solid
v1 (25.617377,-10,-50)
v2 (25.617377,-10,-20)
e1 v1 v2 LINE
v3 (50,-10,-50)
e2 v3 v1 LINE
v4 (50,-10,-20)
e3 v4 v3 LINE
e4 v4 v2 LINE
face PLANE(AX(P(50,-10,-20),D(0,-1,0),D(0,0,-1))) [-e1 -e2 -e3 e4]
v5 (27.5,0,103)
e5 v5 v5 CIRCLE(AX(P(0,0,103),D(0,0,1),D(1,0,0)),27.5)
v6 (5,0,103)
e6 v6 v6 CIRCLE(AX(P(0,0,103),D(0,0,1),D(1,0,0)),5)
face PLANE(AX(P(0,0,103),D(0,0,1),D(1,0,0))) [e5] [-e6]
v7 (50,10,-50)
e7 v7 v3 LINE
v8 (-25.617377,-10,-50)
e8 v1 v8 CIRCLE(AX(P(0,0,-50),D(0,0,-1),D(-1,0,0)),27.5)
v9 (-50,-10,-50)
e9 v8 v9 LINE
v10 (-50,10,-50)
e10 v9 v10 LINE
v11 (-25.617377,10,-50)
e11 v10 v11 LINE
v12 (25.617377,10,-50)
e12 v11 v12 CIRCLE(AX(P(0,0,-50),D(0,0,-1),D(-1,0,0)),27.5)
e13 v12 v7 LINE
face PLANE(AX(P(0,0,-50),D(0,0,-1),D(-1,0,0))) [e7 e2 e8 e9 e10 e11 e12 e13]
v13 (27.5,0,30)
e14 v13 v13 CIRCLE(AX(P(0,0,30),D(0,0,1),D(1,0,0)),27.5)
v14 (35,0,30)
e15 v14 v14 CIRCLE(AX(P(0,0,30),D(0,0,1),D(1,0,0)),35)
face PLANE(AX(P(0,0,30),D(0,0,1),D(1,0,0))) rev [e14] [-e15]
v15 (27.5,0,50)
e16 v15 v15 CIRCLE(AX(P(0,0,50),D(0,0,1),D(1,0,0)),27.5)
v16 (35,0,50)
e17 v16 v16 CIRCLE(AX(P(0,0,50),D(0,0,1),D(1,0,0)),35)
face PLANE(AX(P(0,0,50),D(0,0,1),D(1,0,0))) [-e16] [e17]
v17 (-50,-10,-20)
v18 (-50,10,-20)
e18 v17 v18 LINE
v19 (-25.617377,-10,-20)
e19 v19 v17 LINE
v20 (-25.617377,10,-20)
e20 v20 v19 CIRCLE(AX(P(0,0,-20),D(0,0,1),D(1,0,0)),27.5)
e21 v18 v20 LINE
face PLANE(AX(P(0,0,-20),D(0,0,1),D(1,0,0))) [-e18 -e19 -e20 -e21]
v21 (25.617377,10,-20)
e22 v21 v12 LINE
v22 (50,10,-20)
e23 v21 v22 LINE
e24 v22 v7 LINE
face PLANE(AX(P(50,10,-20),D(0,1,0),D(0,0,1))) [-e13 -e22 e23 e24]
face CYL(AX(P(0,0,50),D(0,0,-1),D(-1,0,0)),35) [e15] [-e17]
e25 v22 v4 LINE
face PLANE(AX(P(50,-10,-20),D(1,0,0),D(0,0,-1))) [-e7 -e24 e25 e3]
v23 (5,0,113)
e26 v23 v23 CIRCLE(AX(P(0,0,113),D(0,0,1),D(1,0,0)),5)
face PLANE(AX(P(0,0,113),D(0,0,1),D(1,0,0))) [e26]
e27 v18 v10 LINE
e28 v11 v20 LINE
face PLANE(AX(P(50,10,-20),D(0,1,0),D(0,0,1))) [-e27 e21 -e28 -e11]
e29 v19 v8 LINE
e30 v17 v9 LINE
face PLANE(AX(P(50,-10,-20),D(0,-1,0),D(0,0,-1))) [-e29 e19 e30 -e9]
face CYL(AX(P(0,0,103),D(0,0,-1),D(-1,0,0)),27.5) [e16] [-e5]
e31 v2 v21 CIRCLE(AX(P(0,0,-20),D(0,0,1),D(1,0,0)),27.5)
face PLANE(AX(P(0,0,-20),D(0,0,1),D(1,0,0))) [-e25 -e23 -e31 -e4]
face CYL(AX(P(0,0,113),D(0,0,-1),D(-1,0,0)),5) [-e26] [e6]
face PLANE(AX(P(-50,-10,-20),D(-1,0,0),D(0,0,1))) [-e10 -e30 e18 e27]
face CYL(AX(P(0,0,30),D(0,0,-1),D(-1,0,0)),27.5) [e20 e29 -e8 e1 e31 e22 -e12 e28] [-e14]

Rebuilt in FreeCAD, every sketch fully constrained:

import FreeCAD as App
import Part
import Sketcher


def add_polygon(sketch, points):
    """Adds a closed chain of lines whose ends are joined by coincident constraints."""
    first, n = sketch.GeometryCount, len(points)
    for a, b in zip(points, points[1:] + points[:1]):
        sketch.addGeometry(Part.LineSegment(App.Vector(*a, 0), App.Vector(*b, 0)), False)
    for i in range(n):
        sketch.addConstraint(Sketcher.Constraint("Coincident", first + i, 2, first + (i + 1) % n, 1))

doc = App.newDocument("Part")
body = doc.addObject("PartDesign::Body", "Body")

# Sketch on XY plane
sketch1 = body.newObject("Sketcher::SketchObject", "Sketch")
sketch1.AttachmentSupport = (doc.getObject("XY_Plane"), [""])
sketch1.MapMode = "FlatFace"
sketch1.addGeometry(Part.Circle(App.Vector(0, 0, 0), App.Vector(0, 0, 1), 28), False)
sketch1.addConstraint(Sketcher.Constraint("Coincident", 0, 3, -1, 1))
sketch1.addConstraint(Sketcher.Constraint("Diameter", 0, 55.0))
pad1 = body.newObject("PartDesign::Pad", "Pad")
pad1.Profile = sketch1
pad1.Length = 30

# Sketch on XY plane
sketch2 = body.newObject("Sketcher::SketchObject", "Sketch001")
sketch2.AttachmentSupport = (doc.getObject("XY_Plane"), [""])
sketch2.MapMode = "FlatFace"
sketch2.AttachmentOffset = App.Placement(App.Vector(0, 0, 30), App.Rotation())
sketch2.addGeometry(Part.Circle(App.Vector(0, 0, 0), App.Vector(0, 0, 1), 35), False)
sketch2.addConstraint(Sketcher.Constraint("Coincident", 0, 3, -1, 1))
sketch2.addConstraint(Sketcher.Constraint("Diameter", 0, 70.0))
pad2 = body.newObject("PartDesign::Pad", "Pad001")
pad2.Profile = sketch2
pad2.Length = 20

# Sketch on XY plane
sketch3 = body.newObject("Sketcher::SketchObject", "Sketch002")
sketch3.AttachmentSupport = (doc.getObject("XY_Plane"), [""])
sketch3.MapMode = "FlatFace"
sketch3.AttachmentOffset = App.Placement(App.Vector(0, 0, 50), App.Rotation())
sketch3.addGeometry(Part.Circle(App.Vector(0, 0, 0), App.Vector(0, 0, 1), 28), False)
sketch3.addConstraint(Sketcher.Constraint("Coincident", 0, 3, -1, 1))
sketch3.addConstraint(Sketcher.Constraint("Diameter", 0, 55.0))
pad3 = body.newObject("PartDesign::Pad", "Pad002")
pad3.Profile = sketch3
pad3.Length = 53

# Sketch on XY plane
sketch4 = body.newObject("Sketcher::SketchObject", "Sketch003")
sketch4.AttachmentSupport = (doc.getObject("XY_Plane"), [""])
sketch4.MapMode = "FlatFace"
sketch4.AttachmentOffset = App.Placement(App.Vector(0, 0, 103), App.Rotation())
sketch4.addGeometry(Part.Circle(App.Vector(0, 0, 0), App.Vector(0, 0, 1), 5), False)
sketch4.addConstraint(Sketcher.Constraint("Coincident", 0, 3, -1, 1))
sketch4.addConstraint(Sketcher.Constraint("Diameter", 0, 10.0))
pad4 = body.newObject("PartDesign::Pad", "Pad003")
pad4.Profile = sketch4
pad4.Length = 10

# Sketch on XY plane
sketch5 = body.newObject("Sketcher::SketchObject", "Sketch004")
sketch5.AttachmentSupport = (doc.getObject("XY_Plane"), [""])
sketch5.MapMode = "FlatFace"
sketch5.AttachmentOffset = App.Placement(App.Vector(0, 0, -50), App.Rotation())
sketch5.addGeometry(Part.Circle(App.Vector(0, 0, 0), App.Vector(0, 0, 1), 28), False)
sketch5.addConstraint(Sketcher.Constraint("Coincident", 0, 3, -1, 1))
sketch5.addConstraint(Sketcher.Constraint("Diameter", 0, 55.0))
pad5 = body.newObject("PartDesign::Pad", "Pad004")
pad5.Profile = sketch5
pad5.Length = 50

# Sketch on XY plane
sketch6 = body.newObject("Sketcher::SketchObject", "Sketch005")
sketch6.AttachmentSupport = (doc.getObject("XY_Plane"), [""])
sketch6.MapMode = "FlatFace"
sketch6.AttachmentOffset = App.Placement(App.Vector(0, 0, -50), App.Rotation())
add_polygon(sketch6, [(50, 10), (50, -10), (-50, -10), (-50, 10)])  # lines 0-3
sketch6.addConstraint(Sketcher.Constraint("Vertical", 0))
sketch6.addConstraint(Sketcher.Constraint("Horizontal", 1))
sketch6.addConstraint(Sketcher.Constraint("Vertical", 2))
sketch6.addConstraint(Sketcher.Constraint("Horizontal", 3))
sketch6.addConstraint(Sketcher.Constraint("Symmetric", 0, 2, 2, 2, -1, 1))
sketch6.addConstraint(Sketcher.Constraint("DistanceX", 1, 2, 1, 1, 100.0))
sketch6.addConstraint(Sketcher.Constraint("DistanceY", 0, 2, 0, 1, 20.0))
pad6 = body.newObject("PartDesign::Pad", "Pad005")
pad6.Profile = sketch6
pad6.Length = 30

doc.recompute()
